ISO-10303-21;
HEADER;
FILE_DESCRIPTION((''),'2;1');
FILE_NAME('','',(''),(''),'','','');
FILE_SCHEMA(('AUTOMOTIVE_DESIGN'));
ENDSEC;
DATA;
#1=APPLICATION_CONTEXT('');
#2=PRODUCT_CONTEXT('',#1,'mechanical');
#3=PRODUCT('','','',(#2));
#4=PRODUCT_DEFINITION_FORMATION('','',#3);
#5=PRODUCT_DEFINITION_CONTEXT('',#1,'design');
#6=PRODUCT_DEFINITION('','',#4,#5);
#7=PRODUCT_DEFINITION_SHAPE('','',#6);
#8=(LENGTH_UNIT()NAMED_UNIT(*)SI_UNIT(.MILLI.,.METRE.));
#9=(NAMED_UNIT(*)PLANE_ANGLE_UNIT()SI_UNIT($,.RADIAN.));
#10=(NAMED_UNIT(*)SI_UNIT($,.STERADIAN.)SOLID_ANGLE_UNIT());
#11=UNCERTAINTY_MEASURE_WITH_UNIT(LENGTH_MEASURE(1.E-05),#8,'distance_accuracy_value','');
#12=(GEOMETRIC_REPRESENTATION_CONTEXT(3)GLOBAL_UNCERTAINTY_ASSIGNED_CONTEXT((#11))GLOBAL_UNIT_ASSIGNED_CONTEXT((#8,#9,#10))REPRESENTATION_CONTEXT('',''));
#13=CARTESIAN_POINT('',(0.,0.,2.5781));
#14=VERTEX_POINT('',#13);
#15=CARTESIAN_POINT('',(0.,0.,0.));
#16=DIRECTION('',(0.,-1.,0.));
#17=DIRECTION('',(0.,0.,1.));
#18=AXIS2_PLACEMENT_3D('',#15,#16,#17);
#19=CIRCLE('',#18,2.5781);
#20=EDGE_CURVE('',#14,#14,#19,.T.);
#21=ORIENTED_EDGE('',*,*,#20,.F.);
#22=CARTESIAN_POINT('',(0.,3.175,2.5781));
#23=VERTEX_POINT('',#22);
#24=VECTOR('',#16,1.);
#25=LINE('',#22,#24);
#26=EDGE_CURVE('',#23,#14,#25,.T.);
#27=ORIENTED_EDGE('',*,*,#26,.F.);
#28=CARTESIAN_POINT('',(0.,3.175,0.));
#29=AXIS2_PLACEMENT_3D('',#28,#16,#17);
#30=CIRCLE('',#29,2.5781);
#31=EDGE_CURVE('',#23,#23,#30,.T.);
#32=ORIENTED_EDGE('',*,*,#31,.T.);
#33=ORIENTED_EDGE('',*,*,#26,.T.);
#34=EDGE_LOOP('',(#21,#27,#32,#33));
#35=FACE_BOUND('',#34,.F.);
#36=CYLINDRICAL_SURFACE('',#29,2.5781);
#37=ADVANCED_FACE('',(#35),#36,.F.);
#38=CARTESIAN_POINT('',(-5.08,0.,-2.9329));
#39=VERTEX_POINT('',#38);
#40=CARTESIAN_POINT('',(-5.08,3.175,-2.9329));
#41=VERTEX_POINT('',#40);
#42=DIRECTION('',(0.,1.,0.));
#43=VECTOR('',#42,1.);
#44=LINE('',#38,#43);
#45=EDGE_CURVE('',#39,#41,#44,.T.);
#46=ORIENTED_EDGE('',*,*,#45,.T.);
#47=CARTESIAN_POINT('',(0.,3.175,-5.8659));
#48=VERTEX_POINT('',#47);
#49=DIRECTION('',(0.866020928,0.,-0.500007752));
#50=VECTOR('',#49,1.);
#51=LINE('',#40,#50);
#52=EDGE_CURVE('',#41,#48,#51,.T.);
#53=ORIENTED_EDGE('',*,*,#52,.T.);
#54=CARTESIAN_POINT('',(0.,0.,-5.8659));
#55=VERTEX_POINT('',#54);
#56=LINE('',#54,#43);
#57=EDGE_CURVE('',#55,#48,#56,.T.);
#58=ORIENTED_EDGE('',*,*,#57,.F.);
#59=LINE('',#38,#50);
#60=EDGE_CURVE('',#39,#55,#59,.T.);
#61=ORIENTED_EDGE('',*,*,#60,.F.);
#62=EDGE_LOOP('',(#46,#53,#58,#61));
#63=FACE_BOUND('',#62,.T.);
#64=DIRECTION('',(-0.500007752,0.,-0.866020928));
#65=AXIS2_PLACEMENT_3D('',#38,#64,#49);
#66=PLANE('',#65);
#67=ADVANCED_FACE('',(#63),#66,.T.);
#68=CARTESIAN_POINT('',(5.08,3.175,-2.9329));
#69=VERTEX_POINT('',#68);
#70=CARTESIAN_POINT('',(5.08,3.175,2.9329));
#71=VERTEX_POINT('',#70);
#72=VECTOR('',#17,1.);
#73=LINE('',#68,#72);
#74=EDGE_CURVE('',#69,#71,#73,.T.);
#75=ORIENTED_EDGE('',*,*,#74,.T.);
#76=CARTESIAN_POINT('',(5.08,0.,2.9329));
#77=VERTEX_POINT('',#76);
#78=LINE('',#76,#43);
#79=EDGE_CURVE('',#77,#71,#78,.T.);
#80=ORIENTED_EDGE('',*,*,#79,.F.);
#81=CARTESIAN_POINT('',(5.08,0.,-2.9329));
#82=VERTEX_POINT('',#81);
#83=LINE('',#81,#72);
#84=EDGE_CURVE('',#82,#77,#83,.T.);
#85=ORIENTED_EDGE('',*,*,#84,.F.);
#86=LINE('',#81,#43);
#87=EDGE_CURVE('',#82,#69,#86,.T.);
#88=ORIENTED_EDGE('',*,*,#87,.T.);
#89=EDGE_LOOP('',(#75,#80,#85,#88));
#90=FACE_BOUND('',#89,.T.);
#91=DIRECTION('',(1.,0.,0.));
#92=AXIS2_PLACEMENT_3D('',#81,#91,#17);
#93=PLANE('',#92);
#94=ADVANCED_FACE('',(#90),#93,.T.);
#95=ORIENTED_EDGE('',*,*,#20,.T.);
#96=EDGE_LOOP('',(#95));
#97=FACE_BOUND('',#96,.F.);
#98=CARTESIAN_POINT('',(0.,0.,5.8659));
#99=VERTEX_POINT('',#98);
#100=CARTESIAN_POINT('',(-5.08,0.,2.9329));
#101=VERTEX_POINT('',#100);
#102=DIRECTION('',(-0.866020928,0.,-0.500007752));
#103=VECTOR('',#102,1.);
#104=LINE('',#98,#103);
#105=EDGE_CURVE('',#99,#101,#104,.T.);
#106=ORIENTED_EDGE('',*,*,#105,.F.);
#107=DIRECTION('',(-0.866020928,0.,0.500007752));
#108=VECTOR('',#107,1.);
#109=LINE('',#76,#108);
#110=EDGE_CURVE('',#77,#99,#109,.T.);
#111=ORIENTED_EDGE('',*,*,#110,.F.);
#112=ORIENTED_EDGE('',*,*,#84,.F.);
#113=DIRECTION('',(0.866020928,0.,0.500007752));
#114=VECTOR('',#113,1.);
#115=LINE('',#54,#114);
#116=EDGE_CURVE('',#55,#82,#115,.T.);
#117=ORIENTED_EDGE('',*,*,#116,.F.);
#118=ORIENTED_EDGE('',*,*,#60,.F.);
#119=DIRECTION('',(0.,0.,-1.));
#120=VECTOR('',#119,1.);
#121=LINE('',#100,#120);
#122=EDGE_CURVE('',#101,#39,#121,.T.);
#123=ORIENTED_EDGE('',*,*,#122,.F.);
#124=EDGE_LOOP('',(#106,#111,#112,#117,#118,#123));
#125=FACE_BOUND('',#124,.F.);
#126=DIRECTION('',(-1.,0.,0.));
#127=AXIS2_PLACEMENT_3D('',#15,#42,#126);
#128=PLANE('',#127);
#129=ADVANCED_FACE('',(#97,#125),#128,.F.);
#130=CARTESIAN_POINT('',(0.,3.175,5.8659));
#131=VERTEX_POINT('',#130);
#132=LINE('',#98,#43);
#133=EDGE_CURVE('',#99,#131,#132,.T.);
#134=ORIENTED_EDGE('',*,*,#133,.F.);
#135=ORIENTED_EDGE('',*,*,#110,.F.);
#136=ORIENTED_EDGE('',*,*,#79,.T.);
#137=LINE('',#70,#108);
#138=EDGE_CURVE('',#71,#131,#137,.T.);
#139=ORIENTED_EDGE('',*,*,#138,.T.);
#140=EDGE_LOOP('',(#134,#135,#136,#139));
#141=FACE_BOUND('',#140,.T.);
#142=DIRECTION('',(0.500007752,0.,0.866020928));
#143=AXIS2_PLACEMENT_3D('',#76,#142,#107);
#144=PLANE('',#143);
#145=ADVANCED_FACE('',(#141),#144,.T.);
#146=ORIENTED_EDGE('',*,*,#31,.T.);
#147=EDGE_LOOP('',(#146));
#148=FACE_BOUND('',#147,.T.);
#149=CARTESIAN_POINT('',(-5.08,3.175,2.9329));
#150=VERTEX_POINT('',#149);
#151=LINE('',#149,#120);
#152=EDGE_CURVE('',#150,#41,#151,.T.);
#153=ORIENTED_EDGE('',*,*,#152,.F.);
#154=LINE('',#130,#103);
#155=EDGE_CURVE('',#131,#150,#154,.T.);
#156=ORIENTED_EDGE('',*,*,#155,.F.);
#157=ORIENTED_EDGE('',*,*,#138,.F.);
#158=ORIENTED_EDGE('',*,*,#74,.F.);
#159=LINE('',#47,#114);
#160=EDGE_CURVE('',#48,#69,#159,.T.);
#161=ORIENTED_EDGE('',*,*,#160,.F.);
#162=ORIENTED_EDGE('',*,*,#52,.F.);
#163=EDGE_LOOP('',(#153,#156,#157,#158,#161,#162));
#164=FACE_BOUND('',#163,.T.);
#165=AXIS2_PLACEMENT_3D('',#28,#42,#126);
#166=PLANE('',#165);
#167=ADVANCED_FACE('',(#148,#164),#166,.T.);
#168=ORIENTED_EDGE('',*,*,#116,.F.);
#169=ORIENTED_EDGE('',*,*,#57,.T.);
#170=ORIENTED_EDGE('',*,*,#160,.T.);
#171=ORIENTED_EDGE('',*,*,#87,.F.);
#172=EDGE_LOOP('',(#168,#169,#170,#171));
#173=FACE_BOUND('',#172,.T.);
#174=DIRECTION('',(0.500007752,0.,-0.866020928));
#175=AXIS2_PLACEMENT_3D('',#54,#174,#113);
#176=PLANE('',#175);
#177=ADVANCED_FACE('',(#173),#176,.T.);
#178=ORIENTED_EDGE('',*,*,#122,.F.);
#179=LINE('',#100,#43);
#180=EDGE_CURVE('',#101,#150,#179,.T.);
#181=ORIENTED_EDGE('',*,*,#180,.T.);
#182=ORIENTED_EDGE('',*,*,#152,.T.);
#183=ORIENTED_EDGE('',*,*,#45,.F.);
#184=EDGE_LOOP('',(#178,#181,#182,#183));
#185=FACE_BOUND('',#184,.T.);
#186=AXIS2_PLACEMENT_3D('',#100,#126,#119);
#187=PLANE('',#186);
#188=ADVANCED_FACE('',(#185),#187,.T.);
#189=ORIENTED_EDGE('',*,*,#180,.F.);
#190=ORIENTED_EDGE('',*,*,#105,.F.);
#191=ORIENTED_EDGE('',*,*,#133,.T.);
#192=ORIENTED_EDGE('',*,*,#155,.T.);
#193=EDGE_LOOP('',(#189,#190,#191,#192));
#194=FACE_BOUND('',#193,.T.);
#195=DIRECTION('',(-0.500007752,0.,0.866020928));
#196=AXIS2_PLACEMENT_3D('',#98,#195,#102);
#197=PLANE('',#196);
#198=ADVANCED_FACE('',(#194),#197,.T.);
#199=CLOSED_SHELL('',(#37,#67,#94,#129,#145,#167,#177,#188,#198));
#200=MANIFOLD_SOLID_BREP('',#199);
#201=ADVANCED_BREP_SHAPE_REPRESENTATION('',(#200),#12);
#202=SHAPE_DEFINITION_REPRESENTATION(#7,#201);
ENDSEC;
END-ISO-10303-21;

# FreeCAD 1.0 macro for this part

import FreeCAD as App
import Part
import Sketcher

V = App.Vector
Q = App.Units.Quantity


def add_polygon(sketch, points):
    """Adds a closed chain of lines whose ends are joined by coincident constraints."""
    first, n = sketch.GeometryCount, len(points)
    for a, b in zip(points, points[1:] + points[:1]):
        sketch.addGeometry(Part.LineSegment(App.Vector(*a, 0), App.Vector(*b, 0)), False)
    for i in range(n):
        sketch.addConstraint(Sketcher.Constraint("Coincident", first + i, 2, first + (i + 1) % n, 1))

doc = App.newDocument("Part")
body = doc.addObject("PartDesign::Body", "Body")

# Sketch on XZ plane
sketch1 = doc.addObject("Sketcher::SketchObject", "Sketch")
body.addObject(sketch1)
sketch1.AttachmentSupport = (doc.XZ_Plane, [""])
sketch1.MapMode = "FlatFace"
add_polygon(sketch1, [(5, -3), (0, -6), (-5, -3), (-5, 3), (0, 6), (5, 3)])  # lines 0-5
sketch1.addConstraint(Sketcher.Constraint("Vertical", 2))
sketch1.addConstraint(Sketcher.Constraint("Vertical", 5))
sketch1.addConstraint(Sketcher.Constraint("Symmetric", 0, 2, 3, 2, -1, 1))
sketch1.addConstraint(Sketcher.Constraint("Symmetric", 1, 2, 4, 2, -1, 1))
sketch1.addConstraint(Sketcher.Constraint("PointOnObject", 0, 2, -2))
sketch1.addConstraint(Sketcher.Constraint("Parallel", 0, 3))
sketch1.addConstraint(Sketcher.Constraint("Horizontal", 2, 2, 4, 2))
sketch1.addConstraint(Sketcher.Constraint("DistanceX", 1, 2, -1, 1, Q("0.2 in")))
sketch1.addConstraint(Sketcher.Constraint("Angle", 0, Q("-149.9995 deg")))
sketch1.addConstraint(Sketcher.Constraint("DistanceY", 2, 1, 2, 2, Q("5.8658 mm")))
pad1 = doc.addObject("PartDesign::Pad", "Pad")
body.addObject(pad1)
pad1.Profile = sketch1
pad1.Length = Q("0.125 in")
pad1.Reversed = True

# Sketch on XZ plane
sketch2 = doc.addObject("Sketcher::SketchObject", "Sketch001")
body.addObject(sketch2)
sketch2.AttachmentSupport = (doc.XZ_Plane, [""])
sketch2.MapMode = "FlatFace"
sketch2.AttachmentOffset = App.Placement(V(0, 0, -0.125 * 25.4), App.Rotation())
sketch2.addGeometry(Part.Circle(V(0, 0, 0), V(0, 0, 1), 2.6), False)
sketch2.addConstraint(Sketcher.Constraint("Coincident", 0, 3, -1, 1))
sketch2.addConstraint(Sketcher.Constraint("Diameter", 0, Q("0.203 in")))
doc.recompute()
hole = doc.addObject("PartDesign::Hole", "Hole")
body.addObject(hole)
hole.Profile = sketch2
hole.ThreadType = "None"
hole.Diameter = Q("0.203 in")
hole.DepthType = "ThroughAll"
hole.Reversed = True

doc.recompute()
